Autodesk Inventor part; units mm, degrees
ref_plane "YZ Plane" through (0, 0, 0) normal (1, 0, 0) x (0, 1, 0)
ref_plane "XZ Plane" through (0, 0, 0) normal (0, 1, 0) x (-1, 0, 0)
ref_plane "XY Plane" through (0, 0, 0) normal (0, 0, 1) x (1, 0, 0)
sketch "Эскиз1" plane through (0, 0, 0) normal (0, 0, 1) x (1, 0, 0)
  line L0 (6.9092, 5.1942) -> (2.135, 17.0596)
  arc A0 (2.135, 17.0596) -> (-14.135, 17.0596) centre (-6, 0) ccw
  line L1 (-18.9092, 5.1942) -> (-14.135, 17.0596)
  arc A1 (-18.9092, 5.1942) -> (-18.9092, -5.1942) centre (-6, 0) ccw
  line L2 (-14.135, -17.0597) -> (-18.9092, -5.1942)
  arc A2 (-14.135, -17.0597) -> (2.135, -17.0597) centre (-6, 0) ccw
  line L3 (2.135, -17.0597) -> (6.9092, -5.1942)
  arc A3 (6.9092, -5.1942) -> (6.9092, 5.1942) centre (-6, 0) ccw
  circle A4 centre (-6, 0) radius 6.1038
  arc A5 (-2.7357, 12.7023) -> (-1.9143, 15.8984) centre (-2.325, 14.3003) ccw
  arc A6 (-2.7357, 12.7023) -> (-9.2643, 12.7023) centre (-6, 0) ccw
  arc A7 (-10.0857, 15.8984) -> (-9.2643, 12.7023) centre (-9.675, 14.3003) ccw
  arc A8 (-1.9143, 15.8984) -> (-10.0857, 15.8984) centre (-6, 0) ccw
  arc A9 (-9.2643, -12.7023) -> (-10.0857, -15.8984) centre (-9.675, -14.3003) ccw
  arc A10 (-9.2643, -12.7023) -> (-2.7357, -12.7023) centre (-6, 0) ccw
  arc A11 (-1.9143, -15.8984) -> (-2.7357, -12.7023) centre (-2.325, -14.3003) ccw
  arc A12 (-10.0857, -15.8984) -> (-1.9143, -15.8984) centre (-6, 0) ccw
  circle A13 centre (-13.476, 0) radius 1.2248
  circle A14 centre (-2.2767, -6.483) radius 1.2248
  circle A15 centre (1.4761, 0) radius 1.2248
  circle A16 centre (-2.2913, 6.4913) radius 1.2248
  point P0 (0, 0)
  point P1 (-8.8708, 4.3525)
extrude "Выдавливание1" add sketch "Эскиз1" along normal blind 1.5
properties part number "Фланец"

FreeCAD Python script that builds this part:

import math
import FreeCAD as App
import Part
import Sketcher
from FreeCAD import Vector
Q = App.Units.Quantity

doc = App.newDocument("Part")
body = doc.addObject("PartDesign::Body", "Body")

sketch1 = doc.addObject("Sketcher::SketchObject", "Sketch")
body.addObject(sketch1)
sketch1.AttachmentSupport = (doc.XY_Plane, [""])
sketch1.MapMode = "FlatFace"
sketch1.addGeometry(Part.ArcOfCircle(Part.Circle(Vector(-6, 0, 0), Vector(0, 0, 1), 13.9), math.radians(-22), math.radians(22)), False)
sketch1.addGeometry(Part.LineSegment(Vector(6.9, 5.2, 0), Vector(2.1, 17.1, 0)), False)
sketch1.addGeometry(Part.ArcOfCircle(Part.Circle(Vector(-6, 0, 0), Vector(0, 0, 1), 18.9), math.radians(65), math.radians(115)), False)
sketch1.addGeometry(Part.LineSegment(Vector(-14.1, 17.1, 0), Vector(-18.9, 5.2, 0)), False)
sketch1.addGeometry(Part.ArcOfCircle(Part.Circle(Vector(-6, 0, 0), Vector(0, 0, 1), 13.9), math.radians(158), math.radians(202)), False)
sketch1.addGeometry(Part.LineSegment(Vector(-18.9, -5.2, 0), Vector(-14.1, -17.1, 0)), False)
sketch1.addGeometry(Part.ArcOfCircle(Part.Circle(Vector(-6, 0, 0), Vector(0, 0, 1), 18.9), math.radians(-115), math.radians(-65)), False)
sketch1.addGeometry(Part.LineSegment(Vector(2.1, -17.1, 0), Vector(6.9, -5.2, 0)), False)
sketch1.addGeometry(Part.ArcOfCircle(Part.Circle(Vector(-9.7, -14.3, 0), Vector(0, 0, 1), 1.6), math.radians(76), math.radians(256)), False)
sketch1.addGeometry(Part.ArcOfCircle(Part.Circle(Vector(-6, 0, 0), Vector(0, 0, 1), 13.1), math.radians(-104), math.radians(-76)), False)
sketch1.addGeometry(Part.ArcOfCircle(Part.Circle(Vector(-2.3, -14.3, 0), Vector(0, 0, 1), 1.7), math.radians(-76), math.radians(104)), False)
sketch1.addGeometry(Part.ArcOfCircle(Part.Circle(Vector(-6, 0, 0), Vector(0, 0, 1), 16.4), math.radians(-104), math.radians(-76)), False)
sketch1.addGeometry(Part.Circle(Vector(-2.3, -6.5, 0), Vector(0, 0, 1), 1.2), False)
sketch1.addGeometry(Part.Circle(Vector(-13.5, 0, 0), Vector(0, 0, 1), 1.2), False)
sketch1.addGeometry(Part.ArcOfCircle(Part.Circle(Vector(-2.3, 14.3, 0), Vector(0, 0, 1), 1.6), math.radians(-104), math.radians(76)), False)
sketch1.addGeometry(Part.ArcOfCircle(Part.Circle(Vector(-6, 0, 0), Vector(0, 0, 1), 13.1), math.radians(76), math.radians(104)), False)
sketch1.addGeometry(Part.ArcOfCircle(Part.Circle(Vector(-9.7, 14.3, 0), Vector(0, 0, 1), 1.7), math.radians(104), math.radians(284)), False)
sketch1.addGeometry(Part.ArcOfCircle(Part.Circle(Vector(-6, 0, 0), Vector(0, 0, 1), 16.4), math.radians(76), math.radians(104)), False)
sketch1.addGeometry(Part.Circle(Vector(-6, 0, 0), Vector(0, 0, 1), 6.1), False)
sketch1.addGeometry(Part.Circle(Vector(-2.3, 6.5, 0), Vector(0, 0, 1), 1.2), False)
sketch1.addGeometry(Part.Circle(Vector(1.5, 0, 0), Vector(0, 0, 1), 1.2), False)
sketch1.addConstraint(Sketcher.Constraint("Tangent", 0, 2, 1, 1))
sketch1.addConstraint(Sketcher.Constraint("Coincident", 1, 2, 2, 1))
sketch1.addConstraint(Sketcher.Constraint("Coincident", 2, 2, 3, 1))
sketch1.addConstraint(Sketcher.Constraint("Tangent", 3, 2, 4, 1))
sketch1.addConstraint(Sketcher.Constraint("Tangent", 4, 2, 5, 1))
sketch1.addConstraint(Sketcher.Constraint("Coincident", 5, 2, 6, 1))
sketch1.addConstraint(Sketcher.Constraint("Coincident", 6, 2, 7, 1))
sketch1.addConstraint(Sketcher.Constraint("Tangent", 7, 2, 0, 1))
sketch1.addConstraint(Sketcher.Constraint("Tangent", 8, 1, 9, 1))
sketch1.addConstraint(Sketcher.Constraint("Tangent", 9, 2, 10, 2))
sketch1.addConstraint(Sketcher.Constraint("Tangent", 10, 1, 11, 2))
sketch1.addConstraint(Sketcher.Constraint("Tangent", 11, 1, 8, 2))
sketch1.addConstraint(Sketcher.Constraint("Tangent", 14, 1, 15, 1))
sketch1.addConstraint(Sketcher.Constraint("Tangent", 15, 2, 16, 2))
sketch1.addConstraint(Sketcher.Constraint("Tangent", 16, 1, 17, 2))
sketch1.addConstraint(Sketcher.Constraint("Tangent", 17, 1, 14, 2))
sketch1.addConstraint(Sketcher.Constraint("Coincident", 2, 3, 0, 3))
sketch1.addConstraint(Sketcher.Constraint("Coincident", 4, 3, 0, 3))
sketch1.addConstraint(Sketcher.Constraint("Coincident", 6, 3, 0, 3))
sketch1.addConstraint(Sketcher.Constraint("Coincident", 9, 3, 0, 3))
sketch1.addConstraint(Sketcher.Constraint("Coincident", 11, 3, 0, 3))
sketch1.addConstraint(Sketcher.Constraint("Coincident", 15, 3, 0, 3))
sketch1.addConstraint(Sketcher.Constraint("Coincident", 17, 3, 0, 3))
sketch1.addConstraint(Sketcher.Constraint("Coincident", 18, 3, 0, 3))
sketch1.addConstraint(Sketcher.Constraint("Equal", 0, 4))
sketch1.addConstraint(Sketcher.Constraint("Equal", 2, 6))
sketch1.addConstraint(Sketcher.Constraint("Equal", 12, 13))
sketch1.addConstraint(Sketcher.Constraint("Equal", 10, 14))
sketch1.addConstraint(Sketcher.Constraint("Equal", 9, 15))
sketch1.addConstraint(Sketcher.Constraint("Equal", 13, 19))
sketch1.addConstraint(Sketcher.Constraint("Equal", 19, 20))
sketch1.addConstraint(Sketcher.Constraint("Symmetric", 10, 3, 14, 3, -1))
sketch1.addConstraint(Sketcher.Constraint("PointOnObject", 13, 3, -1))
sketch1.addConstraint(Sketcher.Constraint("PointOnObject", 20, 3, -1))
sketch1.addConstraint(Sketcher.Constraint("Parallel", 1, 5))
sketch1.addConstraint(Sketcher.Constraint("Parallel", 3, 7))
sketch1.addConstraint(Sketcher.Constraint("Horizontal", 8, 3, 10, 3))
sketch1.addConstraint(Sketcher.Constraint("Horizontal", 14, 3, 16, 3))
sketch1.addConstraint(Sketcher.Constraint("Horizontal", 1, 2, 2, 2))
sketch1.addConstraint(Sketcher.Constraint("Radius", 2, Q("18.9 mm")))
sketch1.addConstraint(Sketcher.Constraint("Radius", 8, Q("1.65 mm")))
sketch1.addConstraint(Sketcher.Constraint("DistanceX", 0, 3, -1, 1, Q("6 mm")))
sketch1.addConstraint(Sketcher.Constraint("Radius", 0, Q("13.915 mm")))
sketch1.addConstraint(Sketcher.Constraint("Radius", 9, Q("13.115 mm")))
sketch1.addConstraint(Sketcher.Constraint("Diameter", 12, Q("2.4496 mm")))
sketch1.addConstraint(Sketcher.Constraint("Diameter", 18, Q("12.2076 mm")))
sketch1.addConstraint(Sketcher.Constraint("DistanceX", 8, 3, 10, 3, Q("7.35 mm")))
sketch1.addConstraint(Sketcher.Constraint("DistanceX", 14, 3, 1, 2, Q("4.46 mm")))
sketch1.addConstraint(Sketcher.Constraint("DistanceY", 12, 3, -1, 1, Q("6.483 mm")))
sketch1.addConstraint(Sketcher.Constraint("DistanceX", 13, 3, -1, 1, Q("13.476 mm")))
sketch1.addConstraint(Sketcher.Constraint("DistanceX", -1, 1, 20, 3, Q("1.476 mm")))
sketch1.addConstraint(Sketcher.Constraint("DistanceY", 0, 2, 19, 3, Q("1.297 mm")))
sketch1.addConstraint(Sketcher.Constraint("DistanceX", 12, 3, 7, 2, Q("9.186 mm")))
sketch1.addConstraint(Sketcher.Constraint("DistanceX", 15, 2, 19, 3, Q("6.973 mm")))
pad1 = doc.addObject("PartDesign::Pad", "Pad")
body.addObject(pad1)
pad1.Profile = sketch1
pad1.Length = 1.5

doc.recompute()
